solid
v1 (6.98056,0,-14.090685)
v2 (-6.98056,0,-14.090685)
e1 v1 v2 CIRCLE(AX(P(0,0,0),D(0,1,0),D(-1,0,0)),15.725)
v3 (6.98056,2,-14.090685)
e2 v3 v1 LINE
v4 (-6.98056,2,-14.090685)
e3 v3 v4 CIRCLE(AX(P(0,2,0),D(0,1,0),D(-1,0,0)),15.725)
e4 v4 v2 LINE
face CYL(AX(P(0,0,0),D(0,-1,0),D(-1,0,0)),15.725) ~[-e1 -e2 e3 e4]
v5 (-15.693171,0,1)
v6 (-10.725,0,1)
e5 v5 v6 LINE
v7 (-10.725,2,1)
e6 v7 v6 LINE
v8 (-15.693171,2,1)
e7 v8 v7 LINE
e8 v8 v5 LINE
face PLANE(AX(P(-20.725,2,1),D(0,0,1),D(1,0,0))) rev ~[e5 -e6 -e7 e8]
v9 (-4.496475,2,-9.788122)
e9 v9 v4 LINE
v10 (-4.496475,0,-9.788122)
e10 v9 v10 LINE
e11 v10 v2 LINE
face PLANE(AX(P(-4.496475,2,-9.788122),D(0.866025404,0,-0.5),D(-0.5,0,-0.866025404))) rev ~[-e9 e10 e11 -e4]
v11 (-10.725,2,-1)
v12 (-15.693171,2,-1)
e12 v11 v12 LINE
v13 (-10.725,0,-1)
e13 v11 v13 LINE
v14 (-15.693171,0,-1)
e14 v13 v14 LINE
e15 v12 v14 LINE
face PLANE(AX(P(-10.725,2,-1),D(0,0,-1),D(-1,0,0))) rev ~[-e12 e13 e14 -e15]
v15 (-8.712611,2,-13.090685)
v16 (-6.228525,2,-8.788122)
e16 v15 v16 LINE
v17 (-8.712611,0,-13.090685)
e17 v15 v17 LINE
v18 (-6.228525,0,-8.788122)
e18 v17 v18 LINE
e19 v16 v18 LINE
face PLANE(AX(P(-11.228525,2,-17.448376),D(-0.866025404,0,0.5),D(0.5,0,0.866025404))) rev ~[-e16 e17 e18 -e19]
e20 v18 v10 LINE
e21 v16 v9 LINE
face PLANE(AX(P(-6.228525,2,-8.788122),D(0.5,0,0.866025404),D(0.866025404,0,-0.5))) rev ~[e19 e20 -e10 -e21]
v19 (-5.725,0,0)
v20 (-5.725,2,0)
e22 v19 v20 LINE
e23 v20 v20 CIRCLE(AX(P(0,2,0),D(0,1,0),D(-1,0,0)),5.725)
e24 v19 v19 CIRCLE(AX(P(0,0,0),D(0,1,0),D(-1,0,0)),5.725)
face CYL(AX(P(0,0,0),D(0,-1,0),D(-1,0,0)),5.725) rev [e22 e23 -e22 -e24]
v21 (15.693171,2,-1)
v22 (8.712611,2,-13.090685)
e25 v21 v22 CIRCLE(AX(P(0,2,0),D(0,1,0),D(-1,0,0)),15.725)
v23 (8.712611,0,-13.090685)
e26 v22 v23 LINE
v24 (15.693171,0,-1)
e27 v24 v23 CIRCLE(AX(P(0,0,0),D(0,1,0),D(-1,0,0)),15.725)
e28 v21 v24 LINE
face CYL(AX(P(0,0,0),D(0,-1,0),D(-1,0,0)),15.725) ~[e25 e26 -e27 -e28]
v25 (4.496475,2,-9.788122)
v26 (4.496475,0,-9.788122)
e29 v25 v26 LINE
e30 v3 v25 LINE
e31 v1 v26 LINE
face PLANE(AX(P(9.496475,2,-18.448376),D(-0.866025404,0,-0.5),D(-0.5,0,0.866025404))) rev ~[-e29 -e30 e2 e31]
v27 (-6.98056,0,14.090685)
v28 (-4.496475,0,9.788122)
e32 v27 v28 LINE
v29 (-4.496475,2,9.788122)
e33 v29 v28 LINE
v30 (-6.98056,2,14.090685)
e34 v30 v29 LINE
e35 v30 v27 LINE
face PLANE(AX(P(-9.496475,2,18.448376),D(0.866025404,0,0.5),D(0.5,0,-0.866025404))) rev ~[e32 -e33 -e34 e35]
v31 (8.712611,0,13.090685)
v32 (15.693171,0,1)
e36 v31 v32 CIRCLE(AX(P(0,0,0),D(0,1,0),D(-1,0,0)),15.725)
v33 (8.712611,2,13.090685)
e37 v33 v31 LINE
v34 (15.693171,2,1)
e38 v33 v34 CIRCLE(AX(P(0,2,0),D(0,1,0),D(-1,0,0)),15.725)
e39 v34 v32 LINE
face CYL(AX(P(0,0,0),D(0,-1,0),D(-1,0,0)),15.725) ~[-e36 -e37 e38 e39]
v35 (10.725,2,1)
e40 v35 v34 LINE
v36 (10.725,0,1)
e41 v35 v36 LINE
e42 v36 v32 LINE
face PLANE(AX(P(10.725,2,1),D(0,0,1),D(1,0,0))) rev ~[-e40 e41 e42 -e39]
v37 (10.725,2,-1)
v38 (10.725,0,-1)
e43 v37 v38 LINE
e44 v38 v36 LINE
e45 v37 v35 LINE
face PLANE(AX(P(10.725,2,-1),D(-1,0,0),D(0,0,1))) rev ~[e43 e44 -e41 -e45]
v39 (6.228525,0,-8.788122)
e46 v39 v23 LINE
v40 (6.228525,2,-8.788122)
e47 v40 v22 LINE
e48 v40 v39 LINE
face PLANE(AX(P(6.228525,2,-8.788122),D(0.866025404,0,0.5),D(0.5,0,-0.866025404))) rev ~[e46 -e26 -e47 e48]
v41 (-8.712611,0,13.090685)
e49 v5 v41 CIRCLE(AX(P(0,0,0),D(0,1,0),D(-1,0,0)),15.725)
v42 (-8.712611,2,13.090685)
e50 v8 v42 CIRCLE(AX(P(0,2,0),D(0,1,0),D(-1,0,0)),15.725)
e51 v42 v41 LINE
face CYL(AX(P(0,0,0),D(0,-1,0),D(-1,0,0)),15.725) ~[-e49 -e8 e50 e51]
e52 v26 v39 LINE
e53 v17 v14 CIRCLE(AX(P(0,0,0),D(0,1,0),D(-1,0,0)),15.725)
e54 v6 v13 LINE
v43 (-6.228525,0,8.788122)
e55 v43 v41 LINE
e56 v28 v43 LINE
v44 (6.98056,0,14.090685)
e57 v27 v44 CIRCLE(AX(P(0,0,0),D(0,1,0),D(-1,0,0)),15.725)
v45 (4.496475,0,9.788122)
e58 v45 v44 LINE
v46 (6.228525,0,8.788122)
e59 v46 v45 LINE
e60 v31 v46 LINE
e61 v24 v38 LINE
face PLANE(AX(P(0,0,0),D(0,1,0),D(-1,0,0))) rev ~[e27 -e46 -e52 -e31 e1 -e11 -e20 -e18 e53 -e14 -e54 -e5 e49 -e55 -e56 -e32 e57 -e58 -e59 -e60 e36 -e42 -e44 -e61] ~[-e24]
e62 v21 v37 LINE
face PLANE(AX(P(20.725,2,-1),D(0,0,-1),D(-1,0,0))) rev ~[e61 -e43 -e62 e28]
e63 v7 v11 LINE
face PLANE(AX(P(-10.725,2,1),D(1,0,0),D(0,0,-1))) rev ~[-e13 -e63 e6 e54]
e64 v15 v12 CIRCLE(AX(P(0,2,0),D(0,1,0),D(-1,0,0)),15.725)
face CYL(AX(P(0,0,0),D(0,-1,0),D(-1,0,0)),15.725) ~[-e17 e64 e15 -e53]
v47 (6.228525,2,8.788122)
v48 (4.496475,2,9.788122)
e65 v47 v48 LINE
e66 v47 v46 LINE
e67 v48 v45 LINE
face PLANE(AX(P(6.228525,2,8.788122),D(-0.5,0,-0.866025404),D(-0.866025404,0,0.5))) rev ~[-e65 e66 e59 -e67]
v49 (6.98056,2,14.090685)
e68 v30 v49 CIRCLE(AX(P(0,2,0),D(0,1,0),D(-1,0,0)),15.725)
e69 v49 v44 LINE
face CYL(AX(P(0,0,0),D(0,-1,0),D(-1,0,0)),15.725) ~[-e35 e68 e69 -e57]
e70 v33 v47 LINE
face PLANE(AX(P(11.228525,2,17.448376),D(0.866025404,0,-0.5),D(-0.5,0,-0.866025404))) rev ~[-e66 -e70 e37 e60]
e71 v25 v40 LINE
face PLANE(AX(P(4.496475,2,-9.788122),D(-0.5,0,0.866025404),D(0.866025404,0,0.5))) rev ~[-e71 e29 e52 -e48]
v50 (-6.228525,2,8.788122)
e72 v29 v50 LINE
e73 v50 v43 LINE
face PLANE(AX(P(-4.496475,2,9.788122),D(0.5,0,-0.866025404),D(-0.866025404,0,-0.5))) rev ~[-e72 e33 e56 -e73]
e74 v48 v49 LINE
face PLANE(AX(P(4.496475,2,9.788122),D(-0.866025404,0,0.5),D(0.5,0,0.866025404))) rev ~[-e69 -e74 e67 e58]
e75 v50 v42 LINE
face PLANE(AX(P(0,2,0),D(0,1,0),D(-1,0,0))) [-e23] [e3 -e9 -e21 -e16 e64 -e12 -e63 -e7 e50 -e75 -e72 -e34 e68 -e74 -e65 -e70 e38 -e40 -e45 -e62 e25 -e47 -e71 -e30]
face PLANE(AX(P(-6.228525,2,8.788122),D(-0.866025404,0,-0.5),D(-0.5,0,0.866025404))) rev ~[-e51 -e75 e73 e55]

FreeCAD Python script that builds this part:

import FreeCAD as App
import Part
import Sketcher

doc = App.newDocument("Part")
body = doc.addObject("PartDesign::Body", "Body")

sketch1 = doc.addObject("Sketcher::SketchObject", "Sketch")
body.addObject(sketch1)
sketch1.AttachmentSupport = (doc.XZ_Plane, [""])
sketch1.MapMode = "FlatFace"
sketch1.addGeometry([
    Part.Circle(App.Vector(0, 0, 0), App.Vector(0, 0, 1), 16),
    Part.Circle(App.Vector(0, 0, 0), App.Vector(0, 0, 1), 6),
], False)
sketch1.addConstraint([
    Sketcher.Constraint("Coincident", 0, 3, -1, 1),
    Sketcher.Constraint("Coincident", 1, 3, -1, 1),
    Sketcher.Constraint("Diameter", 0, 31.45),
    Sketcher.Constraint("Diameter", 1, 11.45),
])
pad1 = doc.addObject("PartDesign::Pad", "Pad")
body.addObject(pad1)
pad1.Profile = sketch1
pad1.Length = 2
pad1.Reversed = True

sketch2 = doc.addObject("Sketcher::SketchObject", "Sketch001")
body.addObject(sketch2)
sketch2.AttachmentSupport = (doc.XZ_Plane, [""])
sketch2.MapMode = "FlatFace"
sketch2.AttachmentOffset = App.Placement(App.Vector(0, 0, -2), App.Rotation())
sketch2.addGeometry([
    Part.LineSegment(App.Vector(-20.7, -1, 0), App.Vector(-20.7, 1, 0)),
    Part.LineSegment(App.Vector(-20.7, 1, 0), App.Vector(-10.7, 1, 0)),
    Part.LineSegment(App.Vector(-10.7, 1, 0), App.Vector(-10.7, -1, 0)),
    Part.LineSegment(App.Vector(-10.7, -1, 0), App.Vector(-20.7, -1, 0)),
], False)
sketch2.addConstraint([
    Sketcher.Constraint("Coincident", 0, 2, 1, 1),
    Sketcher.Constraint("Coincident", 1, 2, 2, 1),
    Sketcher.Constraint("Coincident", 2, 2, 3, 1),
    Sketcher.Constraint("Coincident", 3, 2, 0, 1),
    Sketcher.Constraint("Vertical", 0),
    Sketcher.Constraint("Horizontal", 1),
    Sketcher.Constraint("Vertical", 2),
    Sketcher.Constraint("Horizontal", 3),
    Sketcher.Constraint("DistanceX", 1, 1, 1, 2, 10.0),
    Sketcher.Constraint("DistanceY", 0, 1, 0, 2, 2.0),
    Sketcher.Constraint("DistanceY", -1, 1, 0, 2, 1.0),
    Sketcher.Constraint("DistanceX", 1, 2, -1, 1, 10.725),
])
pocket1 = doc.addObject("PartDesign::Pocket", "Pocket")
body.addObject(pocket1)
pocket1.Profile = sketch2
pocket1.Length = 2
pocket1.Reversed = True
doc.recompute()

polarpattern = doc.addObject("PartDesign::PolarPattern", "PolarPattern")
body.addObject(polarpattern)
polarpattern.Originals = [pocket1]
polarpattern.Axis = (doc.Y_Axis, [""])
polarpattern.Angle = 360
polarpattern.Occurrences = 6
body.Tip = polarpattern

doc.recompute()
